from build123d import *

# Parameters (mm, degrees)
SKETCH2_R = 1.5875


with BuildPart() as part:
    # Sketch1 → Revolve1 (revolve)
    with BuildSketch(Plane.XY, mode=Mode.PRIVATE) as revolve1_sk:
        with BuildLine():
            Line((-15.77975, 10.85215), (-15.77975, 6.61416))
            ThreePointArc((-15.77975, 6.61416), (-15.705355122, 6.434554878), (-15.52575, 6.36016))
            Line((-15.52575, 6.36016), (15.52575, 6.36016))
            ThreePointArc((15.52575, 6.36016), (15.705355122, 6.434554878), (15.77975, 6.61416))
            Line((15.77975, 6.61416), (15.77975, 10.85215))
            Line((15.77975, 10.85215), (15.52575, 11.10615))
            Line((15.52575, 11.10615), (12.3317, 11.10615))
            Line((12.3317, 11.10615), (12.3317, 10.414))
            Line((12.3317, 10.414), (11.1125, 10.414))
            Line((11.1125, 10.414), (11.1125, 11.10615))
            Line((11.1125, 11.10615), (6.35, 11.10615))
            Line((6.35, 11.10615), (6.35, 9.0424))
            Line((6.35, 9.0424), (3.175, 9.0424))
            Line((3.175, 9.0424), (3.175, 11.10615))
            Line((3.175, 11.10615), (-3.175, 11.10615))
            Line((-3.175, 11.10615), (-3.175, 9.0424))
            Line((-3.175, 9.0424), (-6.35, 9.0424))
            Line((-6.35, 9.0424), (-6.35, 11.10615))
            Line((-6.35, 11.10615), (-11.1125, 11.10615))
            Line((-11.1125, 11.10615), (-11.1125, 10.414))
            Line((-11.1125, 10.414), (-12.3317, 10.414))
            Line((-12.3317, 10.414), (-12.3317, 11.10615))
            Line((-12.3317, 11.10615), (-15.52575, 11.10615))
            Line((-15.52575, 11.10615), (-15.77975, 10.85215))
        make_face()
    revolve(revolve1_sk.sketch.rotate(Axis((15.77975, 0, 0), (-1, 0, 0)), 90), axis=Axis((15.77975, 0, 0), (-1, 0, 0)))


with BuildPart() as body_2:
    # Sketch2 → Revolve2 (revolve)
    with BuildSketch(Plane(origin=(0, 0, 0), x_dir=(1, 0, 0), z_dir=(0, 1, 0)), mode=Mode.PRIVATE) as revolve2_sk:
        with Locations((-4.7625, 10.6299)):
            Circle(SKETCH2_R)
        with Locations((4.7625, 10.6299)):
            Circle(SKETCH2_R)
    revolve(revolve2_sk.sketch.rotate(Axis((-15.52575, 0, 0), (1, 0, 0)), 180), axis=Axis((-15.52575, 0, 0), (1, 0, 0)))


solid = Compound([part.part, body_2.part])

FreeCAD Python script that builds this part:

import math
import FreeCAD as App
import Part
import Sketcher
from FreeCAD import Vector
Q = App.Units.Quantity

doc = App.newDocument("Part")
body = doc.addObject("PartDesign::Body", "Body")

# Sketch on XY plane
sketch1 = body.newObject("Sketcher::SketchObject", "Sketch")
sketch1.AttachmentSupport = (doc.getObject("XY_Plane"), [""])
sketch1.MapMode = "FlatFace"
sketch1.addGeometry([
    Part.LineSegment(Vector(-15.78, 10.85, 0), Vector(-15.78, 6.61, 0)),  # 0
    Part.ArcOfCircle(Part.Circle(Vector(-15.53, 6.61, 0), Vector(0, 0, 1), 0.25), math.radians(-180), math.radians(-90)),  # 1
    Part.LineSegment(Vector(-15.53, 6.36, 0), Vector(15.53, 6.36, 0)),  # 2
    Part.ArcOfCircle(Part.Circle(Vector(15.53, 6.61, 0), Vector(0, 0, 1), 0.25), math.radians(-90), math.radians(0)),  # 3
    Part.LineSegment(Vector(15.78, 6.61, 0), Vector(15.78, 10.85, 0)),  # 4
    Part.LineSegment(Vector(15.78, 10.85, 0), Vector(15.53, 11.11, 0)),  # 5
    Part.LineSegment(Vector(15.53, 11.11, 0), Vector(12.33, 11.11, 0)),  # 6
    Part.LineSegment(Vector(12.33, 11.11, 0), Vector(12.33, 10.41, 0)),  # 7
    Part.LineSegment(Vector(12.33, 10.41, 0), Vector(11.11, 10.41, 0)),  # 8
    Part.LineSegment(Vector(11.11, 10.41, 0), Vector(11.11, 11.11, 0)),  # 9
    Part.LineSegment(Vector(11.11, 11.11, 0), Vector(6.35, 11.11, 0)),  # 10
    Part.LineSegment(Vector(6.35, 11.11, 0), Vector(6.35, 9.04, 0)),  # 11
    Part.LineSegment(Vector(6.35, 9.04, 0), Vector(3.17, 9.04, 0)),  # 12
    Part.LineSegment(Vector(3.17, 9.04, 0), Vector(3.17, 11.11, 0)),  # 13
    Part.LineSegment(Vector(3.17, 11.11, 0), Vector(-3.17, 11.11, 0)),  # 14
    Part.LineSegment(Vector(-3.17, 11.11, 0), Vector(-3.17, 9.04, 0)),  # 15
    Part.LineSegment(Vector(-3.17, 9.04, 0), Vector(-6.35, 9.04, 0)),  # 16
    Part.LineSegment(Vector(-6.35, 9.04, 0), Vector(-6.35, 11.11, 0)),  # 17
    Part.LineSegment(Vector(-6.35, 11.11, 0), Vector(-11.11, 11.11, 0)),  # 18
    Part.LineSegment(Vector(-11.11, 11.11, 0), Vector(-11.11, 10.41, 0)),  # 19
    Part.LineSegment(Vector(-11.11, 10.41, 0), Vector(-12.33, 10.41, 0)),  # 20
    Part.LineSegment(Vector(-12.33, 10.41, 0), Vector(-12.33, 11.11, 0)),  # 21
    Part.LineSegment(Vector(-12.33, 11.11, 0), Vector(-15.53, 11.11, 0)),  # 22
    Part.LineSegment(Vector(-15.53, 11.11, 0), Vector(-15.78, 10.85, 0)),  # 23
], False)
sketch1.addConstraint([
    Sketcher.Constraint("Tangent", 0, 2, 1, 1),
    Sketcher.Constraint("Tangent", 1, 2, 2, 1),
    Sketcher.Constraint("Tangent", 2, 2, 3, 1),
    Sketcher.Constraint("Tangent", 3, 2, 4, 1),
    Sketcher.Constraint("Coincident", 4, 2, 5, 1),
    Sketcher.Constraint("Coincident", 5, 2, 6, 1),
    Sketcher.Constraint("Coincident", 6, 2, 7, 1),
    Sketcher.Constraint("Coincident", 7, 2, 8, 1),
    Sketcher.Constraint("Coincident", 8, 2, 9, 1),
    Sketcher.Constraint("Coincident", 9, 2, 10, 1),
    Sketcher.Constraint("Coincident", 10, 2, 11, 1),
    Sketcher.Constraint("Coincident", 11, 2, 12, 1),
    Sketcher.Constraint("Coincident", 12, 2, 13, 1),
    Sketcher.Constraint("Coincident", 13, 2, 14, 1),
    Sketcher.Constraint("Coincident", 14, 2, 15, 1),
    Sketcher.Constraint("Coincident", 15, 2, 16, 1),
    Sketcher.Constraint("Coincident", 16, 2, 17, 1),
    Sketcher.Constraint("Coincident", 17, 2, 18, 1),
    Sketcher.Constraint("Coincident", 18, 2, 19, 1),
    Sketcher.Constraint("Coincident", 19, 2, 20, 1),
    Sketcher.Constraint("Coincident", 20, 2, 21, 1),
    Sketcher.Constraint("Coincident", 21, 2, 22, 1),
    Sketcher.Constraint("Coincident", 22, 2, 23, 1),
    Sketcher.Constraint("Coincident", 23, 2, 0, 1),
    Sketcher.Constraint("Vertical", 0),
    Sketcher.Constraint("Horizontal", 2),
    Sketcher.Constraint("Vertical", 4),
    Sketcher.Constraint("Horizontal", 6),
    Sketcher.Constraint("Vertical", 7),
    Sketcher.Constraint("Horizontal", 8),
    Sketcher.Constraint("Vertical", 9),
    Sketcher.Constraint("Horizontal", 10),
    Sketcher.Constraint("Vertical", 11),
    Sketcher.Constraint("Horizontal", 12),
    Sketcher.Constraint("Vertical", 13),
    Sketcher.Constraint("Horizontal", 14),
    Sketcher.Constraint("Vertical", 15),
    Sketcher.Constraint("Horizontal", 16),
    Sketcher.Constraint("Vertical", 17),
    Sketcher.Constraint("Horizontal", 18),
    Sketcher.Constraint("Vertical", 19),
    Sketcher.Constraint("Horizontal", 20),
    Sketcher.Constraint("Vertical", 21),
    Sketcher.Constraint("Horizontal", 22),
    Sketcher.Constraint("Equal", 1, 3),
    Sketcher.Constraint("Symmetric", 12, 2, 15, 2, -2),
    Sketcher.Constraint("Symmetric", 10, 2, 17, 2, -2),
    Sketcher.Constraint("Symmetric", 8, 2, 19, 2, -2),
    Sketcher.Constraint("Symmetric", 6, 2, 21, 2, -2),
    Sketcher.Constraint("Symmetric", 4, 2, 23, 2, -2),
    Sketcher.Constraint("Perpendicular", 5, 23),
    Sketcher.Constraint("Horizontal", 6, 2, 9, 2),
    Sketcher.Constraint("Horizontal", 10, 2, 13, 2),
    Sketcher.Constraint("Vertical", 2, 2, 5, 2),
    Sketcher.Constraint("Vertical", 1, 2, 22, 2),
    Sketcher.Constraint("Radius", 1, Q("0.01 in")),
    Sketcher.Constraint("DistanceX", 14, 2, 14, 1, Q("0.25 in")),
    Sketcher.Constraint("DistanceX", 8, 2, 8, 1, Q("0.048 in")),
    Sketcher.Constraint("DistanceX", 10, 2, 10, 1, Q("0.1875 in")),
    Sketcher.Constraint("DistanceX", 12, 2, 12, 1, Q("0.125 in")),
    Sketcher.Constraint("DistanceY", -1, 1, 7, 2, Q("0.41 in")),
    Sketcher.Constraint("DistanceX", 2, 1, 2, 2, Q("1.2225 in")),
    Sketcher.Constraint("DistanceY", -1, 1, 11, 2, Q("0.356 in")),
    Sketcher.Constraint("DistanceY", -1, 1, 1, 3, Q("0.2604 in")),
    Sketcher.Constraint("DistanceY", 0, 2, 0, 1, 4.23799),
])
revolution = body.newObject("PartDesign::Revolution", "Revolution")
revolution.Profile = sketch1
revolution.ReferenceAxis = (sketch1, ["H_Axis"])
revolution.Angle = 360
body2 = doc.addObject("PartDesign::Body", "Body001")
body2.AllowCompound = True

# Sketch on XZ plane
sketch2 = body2.newObject("Sketcher::SketchObject", "Sketch001")
sketch2.AttachmentSupport = (doc.getObject("XZ_Plane001"), [""])
sketch2.MapMode = "FlatFace"
sketch2.addGeometry([
    Part.Circle(Vector(-4.8, -10.6, 0), Vector(0, 0, 1), 1.6),
    Part.Circle(Vector(4.8, -10.6, 0), Vector(0, 0, 1), 1.6),
], False)
sketch2.addConstraint([
    Sketcher.Constraint("Equal", 0, 1),
    Sketcher.Constraint("Symmetric", 0, 3, 1, 3, -2),
    Sketcher.Constraint("Diameter", 0, Q("0.125 in")),
    Sketcher.Constraint("DistanceX", 0, 3, -1, 1, Q("0.1875 in")),
    Sketcher.Constraint("DistanceY", 0, 3, -1, 1, Q("0.4185 in")),
])
revolution2 = body2.newObject("PartDesign::Revolution", "Revolution001")
revolution2.Profile = sketch2
revolution2.ReferenceAxis = (sketch2, ["H_Axis"])
revolution2.Angle = 360

doc.recompute()
